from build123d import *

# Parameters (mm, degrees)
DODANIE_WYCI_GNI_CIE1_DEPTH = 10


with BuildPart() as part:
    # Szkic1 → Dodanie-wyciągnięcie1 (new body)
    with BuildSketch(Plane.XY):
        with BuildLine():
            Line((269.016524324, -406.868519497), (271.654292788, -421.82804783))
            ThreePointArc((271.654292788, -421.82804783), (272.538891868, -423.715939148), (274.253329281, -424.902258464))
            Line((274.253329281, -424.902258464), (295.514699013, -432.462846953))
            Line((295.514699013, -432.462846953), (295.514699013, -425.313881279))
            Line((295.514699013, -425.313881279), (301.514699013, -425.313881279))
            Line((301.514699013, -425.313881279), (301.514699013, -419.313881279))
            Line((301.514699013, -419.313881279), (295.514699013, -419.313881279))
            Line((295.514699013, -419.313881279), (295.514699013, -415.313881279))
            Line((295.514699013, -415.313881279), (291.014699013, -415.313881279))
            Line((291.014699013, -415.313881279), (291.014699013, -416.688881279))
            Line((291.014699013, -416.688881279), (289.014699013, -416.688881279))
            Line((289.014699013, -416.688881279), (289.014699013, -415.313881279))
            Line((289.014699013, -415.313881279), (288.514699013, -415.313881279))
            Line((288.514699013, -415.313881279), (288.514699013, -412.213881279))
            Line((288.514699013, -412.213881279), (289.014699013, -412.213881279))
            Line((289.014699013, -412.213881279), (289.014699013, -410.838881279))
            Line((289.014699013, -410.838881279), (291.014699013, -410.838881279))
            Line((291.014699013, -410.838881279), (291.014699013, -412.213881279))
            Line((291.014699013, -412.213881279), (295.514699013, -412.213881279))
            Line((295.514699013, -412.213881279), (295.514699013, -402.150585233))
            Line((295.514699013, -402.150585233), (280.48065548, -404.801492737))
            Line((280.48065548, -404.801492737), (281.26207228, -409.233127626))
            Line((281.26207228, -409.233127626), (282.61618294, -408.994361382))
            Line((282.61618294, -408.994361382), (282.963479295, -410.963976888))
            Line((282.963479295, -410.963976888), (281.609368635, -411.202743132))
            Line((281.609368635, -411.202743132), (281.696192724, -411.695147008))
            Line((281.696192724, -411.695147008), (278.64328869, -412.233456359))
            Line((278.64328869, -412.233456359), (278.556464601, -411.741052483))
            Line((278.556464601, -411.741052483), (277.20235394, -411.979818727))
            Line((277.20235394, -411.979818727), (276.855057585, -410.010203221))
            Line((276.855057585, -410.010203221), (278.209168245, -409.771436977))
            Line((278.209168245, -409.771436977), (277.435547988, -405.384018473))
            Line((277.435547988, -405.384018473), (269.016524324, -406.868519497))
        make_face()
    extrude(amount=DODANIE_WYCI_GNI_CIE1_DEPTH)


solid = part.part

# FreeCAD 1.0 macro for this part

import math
import FreeCAD as App
import Part
import Sketcher
Q = App.Units.Quantity

doc = App.newDocument("Part")
body = doc.addObject("PartDesign::Body", "Body")

# Sketch on XY plane
sketch1 = body.newObject("Sketcher::SketchObject", "Sketch")
sketch1.AttachmentSupport = (doc.getObject("XY_Plane"), [""])
sketch1.MapMode = "FlatFace"
sketch1.addGeometry([
    Part.LineSegment(App.Vector(269.02, -406.87, 0), App.Vector(271.65, -421.83, 0)),  # 0
    Part.ArcOfCircle(Part.Circle(App.Vector(275.59, -421.13, 0), App.Vector(0, 0, 1), 4), math.radians(-170), math.radians(-110)),  # 1
    Part.LineSegment(App.Vector(274.25, -424.9, 0), App.Vector(295.51, -432.46, 0)),  # 2
    Part.LineSegment(App.Vector(295.51, -432.46, 0), App.Vector(295.51, -425.31, 0)),  # 3
    Part.LineSegment(App.Vector(295.51, -425.31, 0), App.Vector(301.51, -425.31, 0)),  # 4
    Part.LineSegment(App.Vector(301.51, -425.31, 0), App.Vector(301.51, -419.31, 0)),  # 5
    Part.LineSegment(App.Vector(301.51, -419.31, 0), App.Vector(295.51, -419.31, 0)),  # 6
    Part.LineSegment(App.Vector(295.51, -419.31, 0), App.Vector(295.51, -415.31, 0)),  # 7
    Part.LineSegment(App.Vector(295.51, -415.31, 0), App.Vector(291.01, -415.31, 0)),  # 8
    Part.LineSegment(App.Vector(291.01, -415.31, 0), App.Vector(291.01, -416.69, 0)),  # 9
    Part.LineSegment(App.Vector(291.01, -416.69, 0), App.Vector(289.01, -416.69, 0)),  # 10
    Part.LineSegment(App.Vector(289.01, -416.69, 0), App.Vector(289.01, -415.31, 0)),  # 11
    Part.LineSegment(App.Vector(289.01, -415.31, 0), App.Vector(288.51, -415.31, 0)),  # 12
    Part.LineSegment(App.Vector(288.51, -415.31, 0), App.Vector(288.51, -412.21, 0)),  # 13
    Part.LineSegment(App.Vector(288.51, -412.21, 0), App.Vector(289.01, -412.21, 0)),  # 14
    Part.LineSegment(App.Vector(289.01, -412.21, 0), App.Vector(289.01, -410.84, 0)),  # 15
    Part.LineSegment(App.Vector(289.01, -410.84, 0), App.Vector(291.01, -410.84, 0)),  # 16
    Part.LineSegment(App.Vector(291.01, -410.84, 0), App.Vector(291.01, -412.21, 0)),  # 17
    Part.LineSegment(App.Vector(291.01, -412.21, 0), App.Vector(295.51, -412.21, 0)),  # 18
    Part.LineSegment(App.Vector(295.51, -412.21, 0), App.Vector(295.51, -402.15, 0)),  # 19
    Part.LineSegment(App.Vector(295.51, -402.15, 0), App.Vector(280.48, -404.8, 0)),  # 20
    Part.LineSegment(App.Vector(280.48, -404.8, 0), App.Vector(281.26, -409.23, 0)),  # 21
    Part.LineSegment(App.Vector(281.26, -409.23, 0), App.Vector(282.62, -408.99, 0)),  # 22
    Part.LineSegment(App.Vector(282.62, -408.99, 0), App.Vector(282.96, -410.96, 0)),  # 23
    Part.LineSegment(App.Vector(282.96, -410.96, 0), App.Vector(281.61, -411.2, 0)),  # 24
    Part.LineSegment(App.Vector(281.61, -411.2, 0), App.Vector(281.7, -411.7, 0)),  # 25
    Part.LineSegment(App.Vector(281.7, -411.7, 0), App.Vector(278.64, -412.23, 0)),  # 26
    Part.LineSegment(App.Vector(278.64, -412.23, 0), App.Vector(278.56, -411.74, 0)),  # 27
    Part.LineSegment(App.Vector(278.56, -411.74, 0), App.Vector(277.2, -411.98, 0)),  # 28
    Part.LineSegment(App.Vector(277.2, -411.98, 0), App.Vector(276.86, -410.01, 0)),  # 29
    Part.LineSegment(App.Vector(276.86, -410.01, 0), App.Vector(278.21, -409.77, 0)),  # 30
    Part.LineSegment(App.Vector(278.21, -409.77, 0), App.Vector(277.44, -405.38, 0)),  # 31
    Part.LineSegment(App.Vector(277.44, -405.38, 0), App.Vector(269.02, -406.87, 0)),  # 32
], False)
sketch1.addConstraint([
    Sketcher.Constraint("Tangent", 0, 2, 1, 1),
    Sketcher.Constraint("Tangent", 1, 2, 2, 1),
    Sketcher.Constraint("Coincident", 2, 2, 3, 1),
    Sketcher.Constraint("Coincident", 3, 2, 4, 1),
    Sketcher.Constraint("Coincident", 4, 2, 5, 1),
    Sketcher.Constraint("Coincident", 5, 2, 6, 1),
    Sketcher.Constraint("Coincident", 6, 2, 7, 1),
    Sketcher.Constraint("Coincident", 7, 2, 8, 1),
    Sketcher.Constraint("Coincident", 8, 2, 9, 1),
    Sketcher.Constraint("Coincident", 9, 2, 10, 1),
    Sketcher.Constraint("Coincident", 10, 2, 11, 1),
    Sketcher.Constraint("Coincident", 11, 2, 12, 1),
    Sketcher.Constraint("Coincident", 12, 2, 13, 1),
    Sketcher.Constraint("Coincident", 13, 2, 14, 1),
    Sketcher.Constraint("Coincident", 14, 2, 15, 1),
    Sketcher.Constraint("Coincident", 15, 2, 16, 1),
    Sketcher.Constraint("Coincident", 16, 2, 17, 1),
    Sketcher.Constraint("Coincident", 17, 2, 18, 1),
    Sketcher.Constraint("Coincident", 18, 2, 19, 1),
    Sketcher.Constraint("Coincident", 19, 2, 20, 1),
    Sketcher.Constraint("Coincident", 20, 2, 21, 1),
    Sketcher.Constraint("Coincident", 21, 2, 22, 1),
    Sketcher.Constraint("Coincident", 22, 2, 23, 1),
    Sketcher.Constraint("Coincident", 23, 2, 24, 1),
    Sketcher.Constraint("Coincident", 24, 2, 25, 1),
    Sketcher.Constraint("Coincident", 25, 2, 26, 1),
    Sketcher.Constraint("Coincident", 26, 2, 27, 1),
    Sketcher.Constraint("Coincident", 27, 2, 28, 1),
    Sketcher.Constraint("Coincident", 28, 2, 29, 1),
    Sketcher.Constraint("Coincident", 29, 2, 30, 1),
    Sketcher.Constraint("Coincident", 30, 2, 31, 1),
    Sketcher.Constraint("Coincident", 31, 2, 32, 1),
    Sketcher.Constraint("Coincident", 32, 2, 0, 1),
    Sketcher.Constraint("Vertical", 3),
    Sketcher.Constraint("Horizontal", 4),
    Sketcher.Constraint("Vertical", 5),
    Sketcher.Constraint("Horizontal", 6),
    Sketcher.Constraint("Vertical", 7),
    Sketcher.Constraint("Horizontal", 8),
    Sketcher.Constraint("Vertical", 9),
    Sketcher.Constraint("Horizontal", 10),
    Sketcher.Constraint("Vertical", 11),
    Sketcher.Constraint("Horizontal", 12),
    Sketcher.Constraint("Vertical", 13),
    Sketcher.Constraint("Horizontal", 14),
    Sketcher.Constraint("Vertical", 15),
    Sketcher.Constraint("Horizontal", 16),
    Sketcher.Constraint("Vertical", 17),
    Sketcher.Constraint("Horizontal", 18),
    Sketcher.Constraint("Vertical", 19),
    Sketcher.Constraint("Perpendicular", 0, 20),
    Sketcher.Constraint("Perpendicular", 20, 21),
    Sketcher.Constraint("Perpendicular", 21, 22),
    Sketcher.Constraint("Perpendicular", 22, 23),
    Sketcher.Constraint("Perpendicular", 23, 24),
    Sketcher.Constraint("Perpendicular", 24, 25),
    Sketcher.Constraint("Perpendicular", 25, 26),
    Sketcher.Constraint("Perpendicular", 26, 27),
    Sketcher.Constraint("Perpendicular", 27, 28),
    Sketcher.Constraint("Perpendicular", 28, 29),
    Sketcher.Constraint("Perpendicular", 29, 30),
    Sketcher.Constraint("Perpendicular", 30, 31),
    Sketcher.Constraint("Perpendicular", 31, 32),
    Sketcher.Constraint("Horizontal", 8, 2, 11, 2),
    Sketcher.Constraint("Horizontal", 14, 2, 17, 2),
    Sketcher.Constraint("Vertical", 3, 2, 6, 2),
    Sketcher.Constraint("Vertical", 11, 2, 14, 2),
    Sketcher.Constraint("Vertical", 9, 2, 16, 2),
    Sketcher.Constraint("Vertical", 7, 2, 18, 2),
    Sketcher.Constraint("Equal", 6, 5),
    Sketcher.Constraint("Equal", 11, 15),
    Sketcher.Constraint("Equal", 22, 24),
    Sketcher.Constraint("Equal", 25, 27),
    Sketcher.Constraint("Equal", 24, 28),
    Sketcher.Constraint("Equal", 23, 29),
    Sketcher.Constraint("Equal", 28, 30),
    Sketcher.Constraint("Radius", 1, 4.0),
    Sketcher.Constraint("DistanceX", 4, 1, 4, 2, 6.0),
    Sketcher.Constraint("DistanceX", 10, 2, 10, 1, 2.0),
    Sketcher.Constraint("DistanceY", 7, 1, 7, 2, 4.0),
    Sketcher.Constraint("Angle", 0, Q("-80 deg")),
    Sketcher.Constraint("Distance", 23, 2.0),
    Sketcher.Constraint("DistanceX", 8, 2, 8, 1, 4.5),
    Sketcher.Constraint("DistanceX", 12, 2, 12, 1, 0.5),
    Sketcher.Constraint("DistanceY", 13, 1, 13, 2, 3.1),
    Sketcher.Constraint("Distance", 21, 4.5),
    Sketcher.Constraint("Distance", 25, 0.5),
    Sketcher.Constraint("Distance", 26, 3.1),
    Sketcher.Constraint("DistanceY", 9, 2, 9, 1, 1.375),
    Sketcher.Constraint("Distance", 22, 1.375),
    Sketcher.Constraint("Distance", 31, 4.455102),
    Sketcher.Constraint("Distance", 32, 8.548901),
    Sketcher.Constraint("DistanceX", -1, 1, 2, 2, 295.514699),
    Sketcher.Constraint("DistanceY", 2, 2, 0, 2, 10.634799),
    Sketcher.Constraint("DistanceY", 3, 1, 3, 2, 7.148966),
    Sketcher.Constraint("DistanceY", 19, 1, 19, 2, 10.063296),
    Sketcher.Constraint("DistanceX", -1, 1, 1, 2, 274.253329),
    Sketcher.Constraint("DistanceY", 1, 2, -1, 1, 424.902258),
])
pad1 = body.newObject("PartDesign::Pad", "Pad")
pad1.Profile = sketch1
pad1.Length = 10

doc.recompute()
